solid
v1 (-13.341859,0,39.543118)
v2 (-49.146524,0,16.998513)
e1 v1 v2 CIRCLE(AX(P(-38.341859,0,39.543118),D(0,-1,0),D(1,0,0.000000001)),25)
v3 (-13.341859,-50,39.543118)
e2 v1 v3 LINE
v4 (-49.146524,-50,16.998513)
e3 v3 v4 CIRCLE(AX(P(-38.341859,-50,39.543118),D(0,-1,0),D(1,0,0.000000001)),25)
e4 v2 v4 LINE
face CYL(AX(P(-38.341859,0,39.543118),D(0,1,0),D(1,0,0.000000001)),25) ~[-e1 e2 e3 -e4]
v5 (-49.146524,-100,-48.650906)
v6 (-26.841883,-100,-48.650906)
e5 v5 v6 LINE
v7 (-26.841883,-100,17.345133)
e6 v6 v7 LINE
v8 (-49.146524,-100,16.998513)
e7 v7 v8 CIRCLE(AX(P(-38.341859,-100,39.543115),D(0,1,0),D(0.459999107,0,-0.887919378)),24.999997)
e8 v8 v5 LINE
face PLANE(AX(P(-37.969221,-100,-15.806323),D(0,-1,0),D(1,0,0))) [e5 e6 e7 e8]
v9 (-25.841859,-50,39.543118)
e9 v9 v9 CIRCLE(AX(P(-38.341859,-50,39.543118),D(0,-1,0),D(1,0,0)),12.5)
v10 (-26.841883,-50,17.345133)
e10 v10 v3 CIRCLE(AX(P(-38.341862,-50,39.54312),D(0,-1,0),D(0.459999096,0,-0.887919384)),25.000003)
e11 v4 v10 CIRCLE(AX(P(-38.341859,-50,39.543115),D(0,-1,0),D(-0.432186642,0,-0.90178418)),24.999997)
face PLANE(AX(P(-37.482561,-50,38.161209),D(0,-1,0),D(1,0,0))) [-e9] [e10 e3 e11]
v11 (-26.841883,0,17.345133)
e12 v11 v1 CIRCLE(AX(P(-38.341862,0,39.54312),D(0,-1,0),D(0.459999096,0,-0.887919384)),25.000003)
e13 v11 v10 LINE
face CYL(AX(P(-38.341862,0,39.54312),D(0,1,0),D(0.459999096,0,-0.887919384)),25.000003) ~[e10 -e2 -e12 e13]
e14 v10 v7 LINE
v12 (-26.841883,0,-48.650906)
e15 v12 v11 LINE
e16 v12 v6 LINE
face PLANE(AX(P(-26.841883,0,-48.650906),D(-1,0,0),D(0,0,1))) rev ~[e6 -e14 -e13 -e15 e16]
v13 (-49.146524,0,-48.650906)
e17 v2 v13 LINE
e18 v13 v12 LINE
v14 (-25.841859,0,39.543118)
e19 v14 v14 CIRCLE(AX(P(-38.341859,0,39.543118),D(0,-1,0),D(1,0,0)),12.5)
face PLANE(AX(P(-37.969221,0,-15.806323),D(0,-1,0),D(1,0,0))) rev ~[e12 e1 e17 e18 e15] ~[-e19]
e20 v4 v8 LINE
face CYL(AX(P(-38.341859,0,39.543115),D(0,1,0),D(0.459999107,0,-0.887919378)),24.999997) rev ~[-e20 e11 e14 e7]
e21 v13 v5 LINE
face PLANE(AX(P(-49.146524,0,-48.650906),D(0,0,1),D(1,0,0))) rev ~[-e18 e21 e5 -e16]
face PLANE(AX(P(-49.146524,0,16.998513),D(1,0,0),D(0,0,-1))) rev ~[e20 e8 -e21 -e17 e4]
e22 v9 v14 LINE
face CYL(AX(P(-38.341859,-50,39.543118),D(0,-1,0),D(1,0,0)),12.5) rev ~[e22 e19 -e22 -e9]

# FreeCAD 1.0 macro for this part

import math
import FreeCAD as App
import Part
import Sketcher

V = App.Vector
Q = App.Units.Quantity

doc = App.newDocument("Part")
body = doc.addObject("PartDesign::Body", "Body")

# Sketch on XZ plane
sketch1 = body.newObject("Sketcher::SketchObject", "Sketch")
sketch1.AttachmentSupport = (doc.getObject("XZ_Plane"), [""])
sketch1.MapMode = "FlatFace"
sketch1.addGeometry(Part.ArcOfCircle(Part.Circle(V(-38.341862, 39.54312, 0), V(0, 0, 1), 25.000003), math.radians(-62.612951), math.radians(-0.000004)), False)
sketch1.addGeometry(Part.ArcOfCircle(Part.Circle(V(-38.341859, 39.543118, 0), V(0, 0, 1), 25), math.radians(0), math.radians(244.393592)), False)
sketch1.addGeometry(Part.ArcOfCircle(Part.Circle(V(-38.341859, 39.543115, 0), V(0, 0, 1), 24.999997), math.radians(-115.60641), math.radians(-62.61295)), False)
sketch1.addConstraint(Sketcher.Constraint("Tangent", 0, 2, 1, 1))
sketch1.addConstraint(Sketcher.Constraint("Tangent", 1, 2, 2, 1))
sketch1.addConstraint(Sketcher.Constraint("Tangent", 2, 2, 0, 1))
sketch1.addConstraint(Sketcher.Constraint("Horizontal", 1, 3, 0, 2))
sketch1.addConstraint(Sketcher.Constraint("Radius", 1, Q("25 mm")))
sketch1.addConstraint(Sketcher.Constraint("DistanceY", 1, 2, 2, 3, Q("22.544602 mm")))
sketch1.addConstraint(Sketcher.Constraint("DistanceX", 0, 3, -1, 1, Q("38.341862 mm")))
sketch1.addConstraint(Sketcher.Constraint("DistanceY", -1, 1, 0, 3, Q("39.54312 mm")))
sketch1.addConstraint(Sketcher.Constraint("DistanceX", 1, 2, 2, 2, Q("22.304641 mm")))
pad1 = body.newObject("PartDesign::Pad", "Pad")
pad1.Profile = sketch1
pad1.Length = 50

# Sketch on XZ plane
sketch2 = body.newObject("Sketcher::SketchObject", "Sketch001")
sketch2.AttachmentSupport = (doc.getObject("XZ_Plane"), [""])
sketch2.MapMode = "FlatFace"
sketch2.addGeometry(Part.ArcOfCircle(Part.Circle(V(-38.341859, 39.543115, 0), V(0, 0, 1), 24.999997), math.radians(-115.60641), math.radians(-62.61295)), False)
sketch2.addGeometry(Part.LineSegment(V(-49.146524, 16.998513, 0), V(-49.146524, -48.650906, 0)), False)
sketch2.addGeometry(Part.LineSegment(V(-49.146524, -48.650906, 0), V(-26.841883, -48.650906, 0)), False)
sketch2.addGeometry(Part.LineSegment(V(-26.841883, -48.650906, 0), V(-26.841883, 17.345133, 0)), False)
sketch2.addConstraint(Sketcher.Constraint("Coincident", 0, 1, 1, 1))
sketch2.addConstraint(Sketcher.Constraint("Coincident", 1, 2, 2, 1))
sketch2.addConstraint(Sketcher.Constraint("Coincident", 2, 2, 3, 1))
sketch2.addConstraint(Sketcher.Constraint("Coincident", 3, 2, 0, 2))
sketch2.addConstraint(Sketcher.Constraint("Vertical", 1))
sketch2.addConstraint(Sketcher.Constraint("Horizontal", 2))
sketch2.addConstraint(Sketcher.Constraint("Vertical", 3))
sketch2.addConstraint(Sketcher.Constraint("Radius", 0, Q("24.999997 mm")))
sketch2.addConstraint(Sketcher.Constraint("DistanceX", 2, 1, 2, 2, Q("22.304641 mm")))
sketch2.addConstraint(Sketcher.Constraint("DistanceY", 1, 2, 1, 1, Q("65.649419 mm")))
sketch2.addConstraint(Sketcher.Constraint("DistanceY", 3, 1, 3, 2, Q("65.996039 mm")))
sketch2.addConstraint(Sketcher.Constraint("DistanceX", 0, 3, -1, 1, Q("38.341859 mm")))
sketch2.addConstraint(Sketcher.Constraint("DistanceY", -1, 1, 0, 3, Q("39.543115 mm")))
pad2 = body.newObject("PartDesign::Pad", "Pad001")
pad2.Profile = sketch2
pad2.Length = 100

# Sketch on XZ plane
sketch3 = body.newObject("Sketcher::SketchObject", "Sketch002")
sketch3.AttachmentSupport = (doc.getObject("XZ_Plane"), [""])
sketch3.MapMode = "FlatFace"
sketch3.AttachmentOffset = App.Placement(V(0, 0, 50), App.Rotation())
sketch3.addGeometry(Part.Circle(V(-38.341859, 39.543118, 0), V(0, 0, 1), 12.5), False)
sketch3.addConstraint(Sketcher.Constraint("Diameter", 0, Q("25 mm")))
sketch3.addConstraint(Sketcher.Constraint("DistanceX", 0, 3, -1, 1, Q("38.341859 mm")))
sketch3.addConstraint(Sketcher.Constraint("DistanceY", -1, 1, 0, 3, Q("39.543118 mm")))
pocket1 = body.newObject("PartDesign::Pocket", "Pocket")
pocket1.Profile = sketch3
pocket1.Length = 50

doc.recompute()
